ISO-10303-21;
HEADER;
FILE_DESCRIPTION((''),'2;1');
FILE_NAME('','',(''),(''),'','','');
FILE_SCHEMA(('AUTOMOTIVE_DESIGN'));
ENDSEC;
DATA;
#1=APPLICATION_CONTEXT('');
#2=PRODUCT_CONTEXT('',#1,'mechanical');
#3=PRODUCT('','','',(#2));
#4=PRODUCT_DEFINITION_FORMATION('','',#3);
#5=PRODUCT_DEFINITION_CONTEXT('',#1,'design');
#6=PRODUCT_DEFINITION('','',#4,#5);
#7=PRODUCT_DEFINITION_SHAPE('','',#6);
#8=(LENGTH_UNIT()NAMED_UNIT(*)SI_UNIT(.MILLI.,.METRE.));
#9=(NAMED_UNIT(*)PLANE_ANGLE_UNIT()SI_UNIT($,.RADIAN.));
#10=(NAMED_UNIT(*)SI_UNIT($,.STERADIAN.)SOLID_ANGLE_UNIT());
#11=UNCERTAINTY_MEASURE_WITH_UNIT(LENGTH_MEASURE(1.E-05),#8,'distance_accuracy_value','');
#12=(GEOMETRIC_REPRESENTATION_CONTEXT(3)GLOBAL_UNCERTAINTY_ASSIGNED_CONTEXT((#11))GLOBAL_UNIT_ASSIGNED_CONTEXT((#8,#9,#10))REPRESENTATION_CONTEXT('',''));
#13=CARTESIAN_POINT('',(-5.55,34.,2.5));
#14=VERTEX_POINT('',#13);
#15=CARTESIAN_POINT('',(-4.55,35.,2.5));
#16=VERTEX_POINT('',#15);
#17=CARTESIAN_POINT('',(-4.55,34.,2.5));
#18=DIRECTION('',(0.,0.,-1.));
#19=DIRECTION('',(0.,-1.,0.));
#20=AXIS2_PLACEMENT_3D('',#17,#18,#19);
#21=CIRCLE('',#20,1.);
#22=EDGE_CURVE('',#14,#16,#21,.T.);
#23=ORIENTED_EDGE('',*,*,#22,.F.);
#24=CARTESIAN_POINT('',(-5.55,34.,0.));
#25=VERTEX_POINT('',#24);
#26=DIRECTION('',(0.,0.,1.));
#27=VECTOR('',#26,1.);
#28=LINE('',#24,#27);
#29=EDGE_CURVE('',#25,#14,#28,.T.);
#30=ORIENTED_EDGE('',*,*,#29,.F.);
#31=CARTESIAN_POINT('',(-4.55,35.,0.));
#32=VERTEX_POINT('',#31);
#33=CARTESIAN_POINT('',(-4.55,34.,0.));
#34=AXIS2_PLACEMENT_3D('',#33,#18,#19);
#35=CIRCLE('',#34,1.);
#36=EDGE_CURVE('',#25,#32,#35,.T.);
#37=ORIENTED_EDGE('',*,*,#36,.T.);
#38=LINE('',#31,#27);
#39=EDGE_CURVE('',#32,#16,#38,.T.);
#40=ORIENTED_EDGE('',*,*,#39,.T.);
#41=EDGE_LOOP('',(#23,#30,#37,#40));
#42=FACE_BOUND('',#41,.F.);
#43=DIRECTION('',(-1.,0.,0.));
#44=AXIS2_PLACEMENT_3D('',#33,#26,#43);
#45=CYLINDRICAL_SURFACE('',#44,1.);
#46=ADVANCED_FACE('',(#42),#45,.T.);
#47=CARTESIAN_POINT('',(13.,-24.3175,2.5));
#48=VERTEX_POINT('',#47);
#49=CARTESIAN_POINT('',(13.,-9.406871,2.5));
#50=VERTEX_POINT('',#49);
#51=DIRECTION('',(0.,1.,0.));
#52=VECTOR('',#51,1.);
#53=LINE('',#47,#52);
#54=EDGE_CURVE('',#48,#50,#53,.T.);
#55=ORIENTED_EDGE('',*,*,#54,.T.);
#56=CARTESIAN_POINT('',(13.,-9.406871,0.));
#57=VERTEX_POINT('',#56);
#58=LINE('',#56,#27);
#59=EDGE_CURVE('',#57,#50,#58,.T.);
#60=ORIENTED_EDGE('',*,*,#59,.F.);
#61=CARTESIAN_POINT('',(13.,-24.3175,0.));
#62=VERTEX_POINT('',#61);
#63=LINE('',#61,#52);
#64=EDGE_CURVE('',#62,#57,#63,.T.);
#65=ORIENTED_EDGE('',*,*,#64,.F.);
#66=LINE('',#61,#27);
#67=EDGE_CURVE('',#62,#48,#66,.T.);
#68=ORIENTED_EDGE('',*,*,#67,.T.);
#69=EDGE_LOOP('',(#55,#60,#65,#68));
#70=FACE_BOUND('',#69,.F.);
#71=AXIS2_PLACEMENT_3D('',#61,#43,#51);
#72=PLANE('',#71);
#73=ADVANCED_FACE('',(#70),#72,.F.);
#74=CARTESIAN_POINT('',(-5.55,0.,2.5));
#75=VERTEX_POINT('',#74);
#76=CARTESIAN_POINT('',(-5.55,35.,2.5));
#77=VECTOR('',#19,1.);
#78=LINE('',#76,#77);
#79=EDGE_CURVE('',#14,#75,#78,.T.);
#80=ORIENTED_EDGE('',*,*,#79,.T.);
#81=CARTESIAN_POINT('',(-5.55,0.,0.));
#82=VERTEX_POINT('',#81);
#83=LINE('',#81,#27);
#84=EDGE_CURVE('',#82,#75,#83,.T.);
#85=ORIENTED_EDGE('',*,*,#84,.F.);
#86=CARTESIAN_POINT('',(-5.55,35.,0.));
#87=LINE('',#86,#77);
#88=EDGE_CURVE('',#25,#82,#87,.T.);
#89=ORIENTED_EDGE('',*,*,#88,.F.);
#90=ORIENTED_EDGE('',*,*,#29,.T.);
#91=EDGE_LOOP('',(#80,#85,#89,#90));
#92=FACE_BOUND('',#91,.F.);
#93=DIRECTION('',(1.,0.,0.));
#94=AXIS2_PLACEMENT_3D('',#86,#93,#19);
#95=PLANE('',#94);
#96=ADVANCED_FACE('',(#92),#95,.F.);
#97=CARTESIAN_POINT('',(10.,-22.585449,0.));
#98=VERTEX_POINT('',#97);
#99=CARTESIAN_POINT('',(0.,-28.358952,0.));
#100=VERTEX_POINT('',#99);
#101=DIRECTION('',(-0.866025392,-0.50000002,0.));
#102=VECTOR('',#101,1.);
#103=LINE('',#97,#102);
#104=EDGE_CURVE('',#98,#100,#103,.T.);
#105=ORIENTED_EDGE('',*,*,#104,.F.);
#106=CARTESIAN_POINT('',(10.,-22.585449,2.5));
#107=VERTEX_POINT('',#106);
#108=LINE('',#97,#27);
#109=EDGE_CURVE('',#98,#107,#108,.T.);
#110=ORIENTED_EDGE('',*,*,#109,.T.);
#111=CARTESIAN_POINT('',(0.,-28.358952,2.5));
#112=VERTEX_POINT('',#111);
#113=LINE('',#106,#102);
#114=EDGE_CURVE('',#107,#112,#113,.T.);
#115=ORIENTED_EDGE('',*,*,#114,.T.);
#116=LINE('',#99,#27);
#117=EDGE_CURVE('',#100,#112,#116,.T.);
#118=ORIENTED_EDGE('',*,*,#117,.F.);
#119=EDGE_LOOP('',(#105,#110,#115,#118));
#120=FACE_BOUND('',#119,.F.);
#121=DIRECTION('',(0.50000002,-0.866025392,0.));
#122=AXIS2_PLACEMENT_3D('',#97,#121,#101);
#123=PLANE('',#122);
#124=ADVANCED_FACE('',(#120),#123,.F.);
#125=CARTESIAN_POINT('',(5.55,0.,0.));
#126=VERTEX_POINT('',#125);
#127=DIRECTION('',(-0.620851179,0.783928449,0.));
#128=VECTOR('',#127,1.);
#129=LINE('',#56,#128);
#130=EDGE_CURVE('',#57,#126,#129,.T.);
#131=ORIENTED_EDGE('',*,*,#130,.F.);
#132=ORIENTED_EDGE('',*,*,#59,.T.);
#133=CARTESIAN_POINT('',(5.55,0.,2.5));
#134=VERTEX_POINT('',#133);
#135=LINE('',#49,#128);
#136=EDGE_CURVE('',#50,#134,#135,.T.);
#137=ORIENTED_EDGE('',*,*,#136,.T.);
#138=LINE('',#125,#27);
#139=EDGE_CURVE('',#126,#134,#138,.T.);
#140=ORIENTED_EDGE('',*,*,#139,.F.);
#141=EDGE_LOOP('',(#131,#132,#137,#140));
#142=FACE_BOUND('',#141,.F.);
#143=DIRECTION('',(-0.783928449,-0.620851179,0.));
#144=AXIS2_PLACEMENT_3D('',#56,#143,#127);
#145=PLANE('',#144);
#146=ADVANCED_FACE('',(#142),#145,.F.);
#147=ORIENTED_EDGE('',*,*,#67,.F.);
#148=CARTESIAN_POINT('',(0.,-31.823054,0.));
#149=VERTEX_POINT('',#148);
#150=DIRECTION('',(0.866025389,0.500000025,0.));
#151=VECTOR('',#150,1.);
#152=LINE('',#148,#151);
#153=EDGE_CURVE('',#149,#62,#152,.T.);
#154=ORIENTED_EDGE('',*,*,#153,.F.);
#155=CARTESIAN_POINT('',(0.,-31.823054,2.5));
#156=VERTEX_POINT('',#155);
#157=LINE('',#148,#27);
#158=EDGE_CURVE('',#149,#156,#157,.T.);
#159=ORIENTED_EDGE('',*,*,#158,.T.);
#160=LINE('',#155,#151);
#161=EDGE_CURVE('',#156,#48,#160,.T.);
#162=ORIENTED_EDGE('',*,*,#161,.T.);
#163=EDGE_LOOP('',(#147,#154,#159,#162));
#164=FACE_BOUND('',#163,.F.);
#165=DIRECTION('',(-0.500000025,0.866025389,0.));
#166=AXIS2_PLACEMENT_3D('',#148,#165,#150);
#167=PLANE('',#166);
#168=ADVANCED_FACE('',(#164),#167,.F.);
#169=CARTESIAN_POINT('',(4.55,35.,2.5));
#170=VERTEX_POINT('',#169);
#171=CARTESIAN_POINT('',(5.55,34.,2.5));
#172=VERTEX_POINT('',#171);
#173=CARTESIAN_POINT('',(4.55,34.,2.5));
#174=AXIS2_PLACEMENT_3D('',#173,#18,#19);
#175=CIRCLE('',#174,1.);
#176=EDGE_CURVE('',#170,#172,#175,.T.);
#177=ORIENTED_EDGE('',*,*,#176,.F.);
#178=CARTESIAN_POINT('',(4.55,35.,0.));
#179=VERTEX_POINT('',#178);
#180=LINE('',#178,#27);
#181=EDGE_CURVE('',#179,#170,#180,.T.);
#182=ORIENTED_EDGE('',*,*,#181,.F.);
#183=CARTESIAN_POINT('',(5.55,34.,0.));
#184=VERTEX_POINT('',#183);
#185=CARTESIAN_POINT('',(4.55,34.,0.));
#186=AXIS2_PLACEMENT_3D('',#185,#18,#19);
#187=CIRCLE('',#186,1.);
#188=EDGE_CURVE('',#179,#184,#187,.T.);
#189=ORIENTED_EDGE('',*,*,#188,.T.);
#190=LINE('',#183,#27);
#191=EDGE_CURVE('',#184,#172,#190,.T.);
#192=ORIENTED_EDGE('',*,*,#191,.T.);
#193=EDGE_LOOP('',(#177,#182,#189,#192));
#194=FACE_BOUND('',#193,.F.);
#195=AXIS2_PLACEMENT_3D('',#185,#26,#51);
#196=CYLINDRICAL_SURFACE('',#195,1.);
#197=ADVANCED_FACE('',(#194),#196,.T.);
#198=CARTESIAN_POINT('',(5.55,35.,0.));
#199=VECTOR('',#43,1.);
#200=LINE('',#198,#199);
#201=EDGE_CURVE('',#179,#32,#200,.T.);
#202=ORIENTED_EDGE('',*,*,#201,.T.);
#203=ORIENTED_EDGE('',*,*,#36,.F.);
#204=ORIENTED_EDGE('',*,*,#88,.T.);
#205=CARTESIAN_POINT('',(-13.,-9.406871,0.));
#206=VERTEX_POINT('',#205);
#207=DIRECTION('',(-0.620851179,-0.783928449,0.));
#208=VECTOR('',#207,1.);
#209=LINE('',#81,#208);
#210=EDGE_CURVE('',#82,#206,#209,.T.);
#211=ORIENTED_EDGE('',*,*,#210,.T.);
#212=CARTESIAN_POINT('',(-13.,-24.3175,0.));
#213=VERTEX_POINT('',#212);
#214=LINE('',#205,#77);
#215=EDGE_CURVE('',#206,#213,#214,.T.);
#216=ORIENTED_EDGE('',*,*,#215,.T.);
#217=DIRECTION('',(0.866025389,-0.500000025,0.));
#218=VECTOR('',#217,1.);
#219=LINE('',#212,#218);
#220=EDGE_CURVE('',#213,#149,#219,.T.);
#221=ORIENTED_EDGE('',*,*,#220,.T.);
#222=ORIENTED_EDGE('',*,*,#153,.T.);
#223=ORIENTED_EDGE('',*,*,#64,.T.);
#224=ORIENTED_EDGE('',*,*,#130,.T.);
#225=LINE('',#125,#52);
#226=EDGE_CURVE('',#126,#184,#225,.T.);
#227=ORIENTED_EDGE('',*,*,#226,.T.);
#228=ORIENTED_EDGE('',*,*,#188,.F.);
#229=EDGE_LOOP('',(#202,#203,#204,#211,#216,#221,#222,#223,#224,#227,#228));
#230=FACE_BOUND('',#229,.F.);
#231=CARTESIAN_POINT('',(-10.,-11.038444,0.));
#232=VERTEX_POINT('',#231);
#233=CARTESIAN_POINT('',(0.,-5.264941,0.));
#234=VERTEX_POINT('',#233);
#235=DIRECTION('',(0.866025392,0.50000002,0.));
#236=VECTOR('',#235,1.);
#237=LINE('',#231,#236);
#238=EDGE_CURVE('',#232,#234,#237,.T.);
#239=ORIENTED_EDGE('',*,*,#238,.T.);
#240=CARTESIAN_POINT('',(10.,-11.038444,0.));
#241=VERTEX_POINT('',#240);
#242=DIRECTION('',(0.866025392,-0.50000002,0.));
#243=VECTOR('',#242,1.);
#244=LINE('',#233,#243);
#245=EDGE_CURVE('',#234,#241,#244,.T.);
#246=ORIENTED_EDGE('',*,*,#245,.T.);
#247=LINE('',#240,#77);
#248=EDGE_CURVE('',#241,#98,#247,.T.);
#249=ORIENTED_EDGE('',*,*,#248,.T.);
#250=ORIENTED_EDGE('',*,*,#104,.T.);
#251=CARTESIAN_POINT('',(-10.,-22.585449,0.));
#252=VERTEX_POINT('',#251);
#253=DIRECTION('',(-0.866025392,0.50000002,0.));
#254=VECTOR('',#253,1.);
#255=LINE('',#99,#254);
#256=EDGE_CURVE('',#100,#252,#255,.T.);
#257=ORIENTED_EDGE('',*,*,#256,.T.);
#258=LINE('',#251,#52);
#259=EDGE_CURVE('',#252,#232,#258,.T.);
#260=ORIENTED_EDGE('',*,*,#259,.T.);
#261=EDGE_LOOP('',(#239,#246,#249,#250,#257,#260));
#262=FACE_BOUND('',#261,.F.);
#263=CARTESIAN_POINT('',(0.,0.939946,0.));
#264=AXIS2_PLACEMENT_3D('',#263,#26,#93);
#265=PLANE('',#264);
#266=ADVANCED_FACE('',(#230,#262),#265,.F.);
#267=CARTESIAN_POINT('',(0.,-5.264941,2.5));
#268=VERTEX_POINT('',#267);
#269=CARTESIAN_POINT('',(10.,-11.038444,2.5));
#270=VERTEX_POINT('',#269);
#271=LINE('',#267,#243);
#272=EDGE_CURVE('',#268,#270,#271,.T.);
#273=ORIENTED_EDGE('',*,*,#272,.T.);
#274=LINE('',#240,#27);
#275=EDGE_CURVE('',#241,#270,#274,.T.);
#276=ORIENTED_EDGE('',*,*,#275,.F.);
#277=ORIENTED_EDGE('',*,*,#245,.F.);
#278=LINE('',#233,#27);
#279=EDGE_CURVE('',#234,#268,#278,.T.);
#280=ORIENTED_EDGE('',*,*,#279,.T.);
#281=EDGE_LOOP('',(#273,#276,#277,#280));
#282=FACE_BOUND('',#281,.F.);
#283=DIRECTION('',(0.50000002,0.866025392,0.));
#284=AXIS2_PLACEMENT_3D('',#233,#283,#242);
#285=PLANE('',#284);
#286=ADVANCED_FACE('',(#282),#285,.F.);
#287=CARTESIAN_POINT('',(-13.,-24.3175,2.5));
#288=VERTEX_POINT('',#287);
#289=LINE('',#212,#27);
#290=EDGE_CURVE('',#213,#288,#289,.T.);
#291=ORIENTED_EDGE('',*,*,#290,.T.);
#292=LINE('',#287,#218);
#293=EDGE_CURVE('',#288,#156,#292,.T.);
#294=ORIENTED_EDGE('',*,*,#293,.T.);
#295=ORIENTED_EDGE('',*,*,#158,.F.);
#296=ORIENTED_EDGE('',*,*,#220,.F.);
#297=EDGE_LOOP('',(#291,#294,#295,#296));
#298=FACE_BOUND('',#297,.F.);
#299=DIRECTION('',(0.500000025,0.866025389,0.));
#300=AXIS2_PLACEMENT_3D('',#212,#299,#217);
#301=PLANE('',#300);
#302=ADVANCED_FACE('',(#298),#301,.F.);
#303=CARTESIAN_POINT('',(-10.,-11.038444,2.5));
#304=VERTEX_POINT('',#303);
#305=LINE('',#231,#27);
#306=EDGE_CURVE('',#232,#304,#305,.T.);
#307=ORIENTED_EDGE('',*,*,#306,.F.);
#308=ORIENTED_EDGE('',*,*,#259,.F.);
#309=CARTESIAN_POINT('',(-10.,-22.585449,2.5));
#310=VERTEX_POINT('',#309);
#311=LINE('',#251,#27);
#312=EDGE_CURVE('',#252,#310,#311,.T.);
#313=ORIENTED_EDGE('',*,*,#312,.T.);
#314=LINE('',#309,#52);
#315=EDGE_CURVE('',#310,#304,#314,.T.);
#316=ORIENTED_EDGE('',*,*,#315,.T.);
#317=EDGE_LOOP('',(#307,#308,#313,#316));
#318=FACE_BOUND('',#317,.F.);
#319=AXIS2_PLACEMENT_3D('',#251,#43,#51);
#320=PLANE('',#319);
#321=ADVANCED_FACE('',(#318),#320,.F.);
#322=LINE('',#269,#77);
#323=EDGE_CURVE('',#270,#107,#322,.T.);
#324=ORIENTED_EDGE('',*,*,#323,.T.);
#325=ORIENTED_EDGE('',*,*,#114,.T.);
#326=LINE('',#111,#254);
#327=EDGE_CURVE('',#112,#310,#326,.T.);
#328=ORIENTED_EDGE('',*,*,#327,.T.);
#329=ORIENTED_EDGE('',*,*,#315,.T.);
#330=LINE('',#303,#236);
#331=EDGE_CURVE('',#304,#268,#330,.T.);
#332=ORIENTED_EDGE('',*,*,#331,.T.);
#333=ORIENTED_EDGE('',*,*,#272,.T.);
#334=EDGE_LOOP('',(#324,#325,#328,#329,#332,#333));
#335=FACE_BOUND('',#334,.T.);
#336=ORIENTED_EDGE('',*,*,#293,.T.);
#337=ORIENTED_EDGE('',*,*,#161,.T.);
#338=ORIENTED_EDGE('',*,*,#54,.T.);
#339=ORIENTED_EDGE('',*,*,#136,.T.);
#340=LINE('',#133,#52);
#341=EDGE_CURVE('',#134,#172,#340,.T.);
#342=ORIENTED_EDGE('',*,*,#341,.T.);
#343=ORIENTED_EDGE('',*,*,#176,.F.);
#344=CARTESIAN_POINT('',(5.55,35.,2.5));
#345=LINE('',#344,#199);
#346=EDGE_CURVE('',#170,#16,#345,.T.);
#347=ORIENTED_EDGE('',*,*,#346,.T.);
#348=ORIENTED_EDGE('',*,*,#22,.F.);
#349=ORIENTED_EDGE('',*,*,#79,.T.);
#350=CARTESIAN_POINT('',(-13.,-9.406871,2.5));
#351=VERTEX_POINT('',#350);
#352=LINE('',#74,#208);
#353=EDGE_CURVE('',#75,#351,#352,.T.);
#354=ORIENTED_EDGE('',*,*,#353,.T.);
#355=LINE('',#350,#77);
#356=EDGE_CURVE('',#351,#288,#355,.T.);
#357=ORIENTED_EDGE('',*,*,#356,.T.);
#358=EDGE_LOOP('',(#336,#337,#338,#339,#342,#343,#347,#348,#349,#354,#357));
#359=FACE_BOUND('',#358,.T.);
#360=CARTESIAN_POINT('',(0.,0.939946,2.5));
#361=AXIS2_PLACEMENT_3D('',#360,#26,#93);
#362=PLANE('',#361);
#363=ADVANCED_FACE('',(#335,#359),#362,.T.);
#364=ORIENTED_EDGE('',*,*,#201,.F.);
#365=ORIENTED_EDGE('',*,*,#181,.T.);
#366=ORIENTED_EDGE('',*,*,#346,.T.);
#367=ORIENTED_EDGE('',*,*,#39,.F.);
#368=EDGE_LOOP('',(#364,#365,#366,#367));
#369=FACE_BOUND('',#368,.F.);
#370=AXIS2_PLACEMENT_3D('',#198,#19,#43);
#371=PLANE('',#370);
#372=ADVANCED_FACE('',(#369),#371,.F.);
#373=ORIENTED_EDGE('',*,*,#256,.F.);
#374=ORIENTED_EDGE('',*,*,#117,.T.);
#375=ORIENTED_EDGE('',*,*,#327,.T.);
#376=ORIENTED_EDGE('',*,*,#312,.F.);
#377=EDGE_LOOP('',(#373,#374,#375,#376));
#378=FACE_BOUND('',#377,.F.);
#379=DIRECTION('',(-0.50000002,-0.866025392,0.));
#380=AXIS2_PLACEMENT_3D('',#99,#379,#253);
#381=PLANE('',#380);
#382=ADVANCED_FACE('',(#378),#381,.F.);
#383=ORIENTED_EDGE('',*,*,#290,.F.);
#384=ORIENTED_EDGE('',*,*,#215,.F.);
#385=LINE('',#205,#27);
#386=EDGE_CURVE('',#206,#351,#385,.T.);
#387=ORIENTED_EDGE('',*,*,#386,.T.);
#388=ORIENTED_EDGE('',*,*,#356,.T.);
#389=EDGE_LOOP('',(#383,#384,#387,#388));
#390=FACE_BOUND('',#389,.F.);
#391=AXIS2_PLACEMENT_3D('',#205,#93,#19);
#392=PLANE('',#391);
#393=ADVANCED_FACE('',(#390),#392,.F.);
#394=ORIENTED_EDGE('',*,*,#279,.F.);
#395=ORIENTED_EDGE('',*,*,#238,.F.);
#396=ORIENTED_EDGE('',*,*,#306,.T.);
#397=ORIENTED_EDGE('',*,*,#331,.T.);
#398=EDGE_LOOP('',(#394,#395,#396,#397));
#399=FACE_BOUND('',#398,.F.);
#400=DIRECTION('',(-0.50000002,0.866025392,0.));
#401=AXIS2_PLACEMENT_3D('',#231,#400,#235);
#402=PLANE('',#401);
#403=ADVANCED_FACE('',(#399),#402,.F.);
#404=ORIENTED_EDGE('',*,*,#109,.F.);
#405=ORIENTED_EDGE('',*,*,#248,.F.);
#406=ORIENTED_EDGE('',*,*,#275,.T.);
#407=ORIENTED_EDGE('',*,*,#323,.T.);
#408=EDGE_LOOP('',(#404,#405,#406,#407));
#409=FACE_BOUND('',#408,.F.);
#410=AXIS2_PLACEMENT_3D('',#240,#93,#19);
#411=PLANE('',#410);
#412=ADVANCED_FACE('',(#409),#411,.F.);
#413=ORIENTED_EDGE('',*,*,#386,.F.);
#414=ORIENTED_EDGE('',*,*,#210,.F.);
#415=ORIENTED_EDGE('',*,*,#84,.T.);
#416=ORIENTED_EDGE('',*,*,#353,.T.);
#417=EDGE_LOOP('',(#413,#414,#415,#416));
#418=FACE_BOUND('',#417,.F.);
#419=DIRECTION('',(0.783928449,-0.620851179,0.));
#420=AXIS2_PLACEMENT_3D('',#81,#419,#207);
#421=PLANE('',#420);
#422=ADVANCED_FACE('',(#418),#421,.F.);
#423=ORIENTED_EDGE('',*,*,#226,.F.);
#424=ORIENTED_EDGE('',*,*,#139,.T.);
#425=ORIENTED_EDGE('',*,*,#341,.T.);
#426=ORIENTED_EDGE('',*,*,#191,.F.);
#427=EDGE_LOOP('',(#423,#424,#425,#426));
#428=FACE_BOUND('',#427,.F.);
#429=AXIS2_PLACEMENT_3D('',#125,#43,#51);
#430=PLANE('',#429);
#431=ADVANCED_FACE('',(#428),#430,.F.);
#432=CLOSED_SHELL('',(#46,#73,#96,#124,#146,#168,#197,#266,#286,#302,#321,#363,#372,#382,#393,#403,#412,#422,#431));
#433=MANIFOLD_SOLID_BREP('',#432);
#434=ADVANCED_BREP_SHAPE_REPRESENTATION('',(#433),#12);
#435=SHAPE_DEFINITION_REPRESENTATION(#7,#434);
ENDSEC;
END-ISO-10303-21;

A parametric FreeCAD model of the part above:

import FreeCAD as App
import Part
import Sketcher
Q = App.Units.Quantity


def edges_at(feature, points):
    """Names of the edges that pass closest to the given points."""
    edges = feature.Shape.Edges
    near = lambda p: min(range(len(edges)), key=lambda i: edges[i].distToShape(Part.Vertex(*p))[0])
    return sorted({f"Edge{near(p) + 1}" for p in points})


def add_polygon(sketch, points):
    """Adds a closed chain of lines whose ends are joined by coincident constraints."""
    first, n = sketch.GeometryCount, len(points)
    for a, b in zip(points, points[1:] + points[:1]):
        sketch.addGeometry(Part.LineSegment(App.Vector(*a, 0), App.Vector(*b, 0)), False)
    for i in range(n):
        sketch.addConstraint(Sketcher.Constraint("Coincident", first + i, 2, first + (i + 1) % n, 1))

doc = App.newDocument("Part")
body = doc.addObject("PartDesign::Body", "Body")

# Sketch on XY plane
sketch1 = body.newObject("Sketcher::SketchObject", "Sketch")
sketch1.AttachmentSupport = (doc.getObject("XY_Plane"), [""])
sketch1.MapMode = "FlatFace"
add_polygon(sketch1, [(-6, 35), (-6, 0), (-13, -9), (-13, -24), (0, -32), (13, -24), (13, -9), (6, 0), (6, 35)])  # lines 0-8
add_polygon(sketch1, [(0, -5), (10, -11), (10, -23), (0, -28), (-10, -23), (-10, -11)])  # lines 9-14
sketch1.addConstraint(Sketcher.Constraint("Vertical", 0))
sketch1.addConstraint(Sketcher.Constraint("Vertical", 2))
sketch1.addConstraint(Sketcher.Constraint("Vertical", 5))
sketch1.addConstraint(Sketcher.Constraint("Vertical", 7))
sketch1.addConstraint(Sketcher.Constraint("Horizontal", 8))
sketch1.addConstraint(Sketcher.Constraint("Vertical", 10))
sketch1.addConstraint(Sketcher.Constraint("Vertical", 13))
sketch1.addConstraint(Sketcher.Constraint("Symmetric", 0, 2, 6, 2, -1, 1))
sketch1.addConstraint(Sketcher.Constraint("Symmetric", 2, 2, 4, 2, -2))
sketch1.addConstraint(Sketcher.Constraint("Symmetric", 10, 2, 12, 2, -2))
sketch1.addConstraint(Sketcher.Constraint("PointOnObject", 0, 2, -1))
sketch1.addConstraint(Sketcher.Constraint("PointOnObject", 3, 2, -2))
sketch1.addConstraint(Sketcher.Constraint("PointOnObject", 11, 2, -2))
sketch1.addConstraint(Sketcher.Constraint("PointOnObject", 14, 2, -2))
sketch1.addConstraint(Sketcher.Constraint("Parallel", 3, 9))
sketch1.addConstraint(Sketcher.Constraint("Parallel", 4, 11))
sketch1.addConstraint(Sketcher.Constraint("Parallel", 11, 14))
sketch1.addConstraint(Sketcher.Constraint("Horizontal", 1, 2, 5, 2))
sketch1.addConstraint(Sketcher.Constraint("DistanceY", 0, 2, 0, 1, Q("35 mm")))
sketch1.addConstraint(Sketcher.Constraint("Angle", 3, Q("-30.000002 deg")))
sketch1.addConstraint(Sketcher.Constraint("DistanceX", 8, 2, 8, 1, Q("11.1 mm")))
sketch1.addConstraint(Sketcher.Constraint("DistanceX", 1, 2, -1, 1, Q("13 mm")))
sketch1.addConstraint(Sketcher.Constraint("DistanceX", -1, 1, 9, 2, Q("10 mm")))
sketch1.addConstraint(Sketcher.Constraint("DistanceY", 2, 2, 2, 1, Q("14.910629 mm")))
sketch1.addConstraint(Sketcher.Constraint("DistanceY", 2, 2, -1, 1, Q("24.3175 mm")))
sketch1.addConstraint(Sketcher.Constraint("DistanceY", 10, 2, 10, 1, Q("11.547005 mm")))
sketch1.addConstraint(Sketcher.Constraint("DistanceY", 10, 2, -1, 1, Q("22.585449 mm")))
pad1 = body.newObject("PartDesign::Pad", "Pad")
pad1.Profile = sketch1
pad1.Length = 2.5
doc.recompute()

fillet = body.newObject("PartDesign::Fillet", "Fillet")
fillet.Base = (pad1, edges_at(pad1, [(-5.55, 35, 1.25), (5.55, 35, 1.25)]))
fillet.Radius = 1

doc.recompute()
